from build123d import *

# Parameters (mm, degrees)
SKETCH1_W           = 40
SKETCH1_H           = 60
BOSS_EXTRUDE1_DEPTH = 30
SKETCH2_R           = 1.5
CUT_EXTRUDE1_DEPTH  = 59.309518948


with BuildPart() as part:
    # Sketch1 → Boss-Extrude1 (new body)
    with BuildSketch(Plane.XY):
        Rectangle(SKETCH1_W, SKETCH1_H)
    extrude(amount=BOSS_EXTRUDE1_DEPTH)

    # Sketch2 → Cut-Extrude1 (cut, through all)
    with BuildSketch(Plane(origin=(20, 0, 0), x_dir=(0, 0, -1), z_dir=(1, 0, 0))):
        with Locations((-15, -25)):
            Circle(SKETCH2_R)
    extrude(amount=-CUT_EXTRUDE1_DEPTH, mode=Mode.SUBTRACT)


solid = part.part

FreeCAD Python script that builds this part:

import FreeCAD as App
import Part
import Sketcher
from FreeCAD import Vector


def add_polygon(sketch, points):
    """Adds a closed chain of lines whose ends are joined by coincident constraints."""
    first, n = sketch.GeometryCount, len(points)
    for a, b in zip(points, points[1:] + points[:1]):
        sketch.addGeometry(Part.LineSegment(App.Vector(*a, 0), App.Vector(*b, 0)), False)
    for i in range(n):
        sketch.addConstraint(Sketcher.Constraint("Coincident", first + i, 2, first + (i + 1) % n, 1))

doc = App.newDocument("Part")
body = doc.addObject("PartDesign::Body", "Body")

# Sketch on XY plane
sketch1 = body.newObject("Sketcher::SketchObject", "Sketch")
sketch1.AttachmentSupport = (doc.getObject("XY_Plane"), [""])
sketch1.MapMode = "FlatFace"
add_polygon(sketch1, [(-20, 30), (-20, -30), (20, -30), (20, 30)])  # lines 0-3
sketch1.addConstraint([
    Sketcher.Constraint("Vertical", 0),
    Sketcher.Constraint("Horizontal", 1),
    Sketcher.Constraint("Vertical", 2),
    Sketcher.Constraint("Horizontal", 3),
    Sketcher.Constraint("Symmetric", 0, 2, 2, 2, -1, 1),
    Sketcher.Constraint("DistanceX", 1, 1, 1, 2, 40.0),
    Sketcher.Constraint("DistanceY", 0, 2, 0, 1, 60.0),
])
pad1 = body.newObject("PartDesign::Pad", "Pad")
pad1.Profile = sketch1
pad1.Length = 30

# Sketch on YZ plane
sketch2 = body.newObject("Sketcher::SketchObject", "Sketch001")
sketch2.AttachmentSupport = (doc.getObject("YZ_Plane"), [""])
sketch2.MapMode = "FlatFace"
sketch2.AttachmentOffset = App.Placement(Vector(0, 0, 20), App.Rotation())
sketch2.addGeometry(Part.Circle(Vector(-25, 15, 0), Vector(0, 0, 1), 1.5), False)
sketch2.addConstraint([
    Sketcher.Constraint("Diameter", 0, 3.0),
    Sketcher.Constraint("DistanceX", 0, 3, -1, 1, 25.0),
    Sketcher.Constraint("DistanceY", -1, 1, 0, 3, 15.0),
])
pocket1 = body.newObject("PartDesign::Pocket", "Pocket")
pocket1.Profile = sketch2
pocket1.Type = "ThroughAll"

doc.recompute()
